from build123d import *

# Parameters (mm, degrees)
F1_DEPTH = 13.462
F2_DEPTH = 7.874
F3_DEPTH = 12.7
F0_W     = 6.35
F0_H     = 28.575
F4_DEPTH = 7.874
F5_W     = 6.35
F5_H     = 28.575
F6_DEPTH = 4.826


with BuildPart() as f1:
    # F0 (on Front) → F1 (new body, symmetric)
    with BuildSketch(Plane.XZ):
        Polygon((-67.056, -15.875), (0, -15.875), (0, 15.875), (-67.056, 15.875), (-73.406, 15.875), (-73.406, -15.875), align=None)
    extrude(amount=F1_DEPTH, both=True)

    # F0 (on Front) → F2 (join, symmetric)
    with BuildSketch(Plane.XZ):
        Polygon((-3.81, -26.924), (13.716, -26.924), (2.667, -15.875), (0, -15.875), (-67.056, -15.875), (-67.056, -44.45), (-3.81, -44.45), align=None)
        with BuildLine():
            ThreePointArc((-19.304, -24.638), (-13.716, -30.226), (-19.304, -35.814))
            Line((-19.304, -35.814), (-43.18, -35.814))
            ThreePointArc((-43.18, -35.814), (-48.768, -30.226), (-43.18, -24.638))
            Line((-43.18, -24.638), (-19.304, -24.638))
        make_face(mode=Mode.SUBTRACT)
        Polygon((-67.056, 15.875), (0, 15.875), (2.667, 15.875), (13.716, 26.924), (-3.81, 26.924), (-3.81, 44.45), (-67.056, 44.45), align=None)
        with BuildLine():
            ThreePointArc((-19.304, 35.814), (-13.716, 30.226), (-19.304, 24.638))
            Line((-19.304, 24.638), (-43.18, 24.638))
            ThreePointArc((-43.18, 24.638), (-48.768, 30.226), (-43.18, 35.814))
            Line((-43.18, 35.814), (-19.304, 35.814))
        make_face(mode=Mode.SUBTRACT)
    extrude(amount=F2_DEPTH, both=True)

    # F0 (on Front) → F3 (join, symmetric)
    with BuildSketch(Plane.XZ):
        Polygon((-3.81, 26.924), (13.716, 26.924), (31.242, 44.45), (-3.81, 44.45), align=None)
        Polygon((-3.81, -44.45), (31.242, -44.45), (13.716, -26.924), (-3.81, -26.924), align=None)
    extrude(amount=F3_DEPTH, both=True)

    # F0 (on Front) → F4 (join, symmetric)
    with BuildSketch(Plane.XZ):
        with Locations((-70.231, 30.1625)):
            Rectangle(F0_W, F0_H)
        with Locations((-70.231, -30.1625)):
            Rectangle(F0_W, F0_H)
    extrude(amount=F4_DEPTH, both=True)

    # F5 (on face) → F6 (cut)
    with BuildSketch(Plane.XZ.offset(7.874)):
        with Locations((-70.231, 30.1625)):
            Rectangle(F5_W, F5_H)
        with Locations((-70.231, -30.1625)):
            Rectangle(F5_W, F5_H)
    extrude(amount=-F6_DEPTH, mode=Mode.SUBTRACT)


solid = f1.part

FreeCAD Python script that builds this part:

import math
import FreeCAD as App
import Part
import Sketcher

V = App.Vector
Q = App.Units.Quantity

doc = App.newDocument("Part")
body = doc.addObject("PartDesign::Body", "Body")

# Sketch on XZ plane
sketch1 = body.newObject("Sketcher::SketchObject", "Sketch")
sketch1.AttachmentSupport = (doc.getObject("XZ_Plane"), [""])
sketch1.MapMode = "FlatFace"
sketch1.addGeometry(Part.LineSegment(V(0, -16, 0), V(0, 16, 0)), False)
sketch1.addGeometry(Part.LineSegment(V(0, 16, 0), V(-73, 16, 0)), False)
sketch1.addGeometry(Part.LineSegment(V(-73, 16, 0), V(-73, -16, 0)), False)
sketch1.addGeometry(Part.LineSegment(V(-73, -16, 0), V(0, -16, 0)), False)
sketch1.addConstraint(Sketcher.Constraint("Coincident", 0, 2, 1, 1))
sketch1.addConstraint(Sketcher.Constraint("Coincident", 1, 2, 2, 1))
sketch1.addConstraint(Sketcher.Constraint("Coincident", 2, 2, 3, 1))
sketch1.addConstraint(Sketcher.Constraint("Coincident", 3, 2, 0, 1))
sketch1.addConstraint(Sketcher.Constraint("Vertical", 0))
sketch1.addConstraint(Sketcher.Constraint("Horizontal", 1))
sketch1.addConstraint(Sketcher.Constraint("Vertical", 2))
sketch1.addConstraint(Sketcher.Constraint("Horizontal", 3))
sketch1.addConstraint(Sketcher.Constraint("Symmetric", 0, 2, 3, 2, -1, 1))
sketch1.addConstraint(Sketcher.Constraint("DistanceX", 1, 2, 1, 1, Q("2.89 in")))
sketch1.addConstraint(Sketcher.Constraint("DistanceY", 0, 1, 0, 2, Q("1.25 in")))
pad1 = body.newObject("PartDesign::Pad", "Pad")
pad1.Profile = sketch1
pad1.Length = Q("1.06 in")
pad1.Midplane = True

# Sketch on XZ plane
sketch2 = body.newObject("Sketcher::SketchObject", "Sketch001")
sketch2.AttachmentSupport = (doc.getObject("XZ_Plane"), [""])
sketch2.MapMode = "FlatFace"
sketch2.addGeometry(Part.LineSegment(V(-4, -27, 0), V(14, -27, 0)), False)
sketch2.addGeometry(Part.LineSegment(V(14, -27, 0), V(3, -16, 0)), False)
sketch2.addGeometry(Part.LineSegment(V(3, -16, 0), V(-67, -16, 0)), False)
sketch2.addGeometry(Part.LineSegment(V(-67, -16, 0), V(-67, -44, 0)), False)
sketch2.addGeometry(Part.LineSegment(V(-67, -44, 0), V(-4, -44, 0)), False)
sketch2.addGeometry(Part.LineSegment(V(-4, -44, 0), V(-4, -27, 0)), False)
sketch2.addGeometry(Part.LineSegment(V(-43, -25, 0), V(-19, -25, 0)), False)
sketch2.addGeometry(Part.ArcOfCircle(Part.Circle(V(-19, -30, 0), V(0, 0, 1), 6), math.radians(-90), math.radians(90)), False)
sketch2.addGeometry(Part.LineSegment(V(-19, -36, 0), V(-43, -36, 0)), False)
sketch2.addGeometry(Part.ArcOfCircle(Part.Circle(V(-43, -30, 0), V(0, 0, 1), 6), math.radians(90), math.radians(270)), False)
sketch2.addGeometry(Part.LineSegment(V(-67, 16, 0), V(3, 16, 0)), False)
sketch2.addGeometry(Part.LineSegment(V(3, 16, 0), V(14, 27, 0)), False)
sketch2.addGeometry(Part.LineSegment(V(14, 27, 0), V(-4, 27, 0)), False)
sketch2.addGeometry(Part.LineSegment(V(-4, 27, 0), V(-4, 44, 0)), False)
sketch2.addGeometry(Part.LineSegment(V(-4, 44, 0), V(-67, 44, 0)), False)
sketch2.addGeometry(Part.LineSegment(V(-67, 44, 0), V(-67, 16, 0)), False)
sketch2.addGeometry(Part.LineSegment(V(-43, 36, 0), V(-19, 36, 0)), False)
sketch2.addGeometry(Part.ArcOfCircle(Part.Circle(V(-19, 30, 0), V(0, 0, 1), 6), math.radians(-90), math.radians(90)), False)
sketch2.addGeometry(Part.LineSegment(V(-19, 25, 0), V(-43, 25, 0)), False)
sketch2.addGeometry(Part.ArcOfCircle(Part.Circle(V(-43, 30, 0), V(0, 0, 1), 6), math.radians(90), math.radians(270)), False)
sketch2.addConstraint(Sketcher.Constraint("Coincident", 0, 2, 1, 1))
sketch2.addConstraint(Sketcher.Constraint("Coincident", 1, 2, 2, 1))
sketch2.addConstraint(Sketcher.Constraint("Coincident", 2, 2, 3, 1))
sketch2.addConstraint(Sketcher.Constraint("Coincident", 3, 2, 4, 1))
sketch2.addConstraint(Sketcher.Constraint("Coincident", 4, 2, 5, 1))
sketch2.addConstraint(Sketcher.Constraint("Coincident", 5, 2, 0, 1))
sketch2.addConstraint(Sketcher.Constraint("Tangent", 6, 2, 7, 2))
sketch2.addConstraint(Sketcher.Constraint("Tangent", 7, 1, 8, 1))
sketch2.addConstraint(Sketcher.Constraint("Tangent", 8, 2, 9, 2))
sketch2.addConstraint(Sketcher.Constraint("Tangent", 9, 1, 6, 1))
sketch2.addConstraint(Sketcher.Constraint("Coincident", 10, 2, 11, 1))
sketch2.addConstraint(Sketcher.Constraint("Coincident", 11, 2, 12, 1))
sketch2.addConstraint(Sketcher.Constraint("Coincident", 12, 2, 13, 1))
sketch2.addConstraint(Sketcher.Constraint("Coincident", 13, 2, 14, 1))
sketch2.addConstraint(Sketcher.Constraint("Coincident", 14, 2, 15, 1))
sketch2.addConstraint(Sketcher.Constraint("Coincident", 15, 2, 10, 1))
sketch2.addConstraint(Sketcher.Constraint("Tangent", 16, 2, 17, 2))
sketch2.addConstraint(Sketcher.Constraint("Tangent", 17, 1, 18, 1))
sketch2.addConstraint(Sketcher.Constraint("Tangent", 18, 2, 19, 2))
sketch2.addConstraint(Sketcher.Constraint("Tangent", 19, 1, 16, 1))
sketch2.addConstraint(Sketcher.Constraint("Horizontal", 0))
sketch2.addConstraint(Sketcher.Constraint("Horizontal", 2))
sketch2.addConstraint(Sketcher.Constraint("Vertical", 3))
sketch2.addConstraint(Sketcher.Constraint("Horizontal", 4))
sketch2.addConstraint(Sketcher.Constraint("Vertical", 5))
sketch2.addConstraint(Sketcher.Constraint("Horizontal", 6))
sketch2.addConstraint(Sketcher.Constraint("Horizontal", 8))
sketch2.addConstraint(Sketcher.Constraint("Horizontal", 10))
sketch2.addConstraint(Sketcher.Constraint("Horizontal", 12))
sketch2.addConstraint(Sketcher.Constraint("Vertical", 13))
sketch2.addConstraint(Sketcher.Constraint("Horizontal", 14))
sketch2.addConstraint(Sketcher.Constraint("Vertical", 15))
sketch2.addConstraint(Sketcher.Constraint("Horizontal", 16))
sketch2.addConstraint(Sketcher.Constraint("Horizontal", 18))
sketch2.addConstraint(Sketcher.Constraint("Equal", 9, 17))
sketch2.addConstraint(Sketcher.Constraint("Symmetric", 7, 3, 17, 3, -1))
sketch2.addConstraint(Sketcher.Constraint("Symmetric", 1, 2, 10, 2, -1))
sketch2.addConstraint(Sketcher.Constraint("Symmetric", 0, 2, 11, 2, -1))
sketch2.addConstraint(Sketcher.Constraint("Symmetric", 4, 2, 13, 2, -1))
sketch2.addConstraint(Sketcher.Constraint("Perpendicular", 1, 11))
sketch2.addConstraint(Sketcher.Constraint("Vertical", 9, 3, 19, 3))
sketch2.addConstraint(Sketcher.Constraint("Vertical", 3, 2, 14, 2))
sketch2.addConstraint(Sketcher.Constraint("Equal", 12, 5))
sketch2.addConstraint(Sketcher.Constraint("Radius", 7, Q("0.22 in")))
sketch2.addConstraint(Sketcher.Constraint("DistanceX", 0, 1, 0, 2, Q("0.69 in")))
sketch2.addConstraint(Sketcher.Constraint("DistanceX", 4, 1, 4, 2, Q("2.49 in")))
sketch2.addConstraint(Sketcher.Constraint("DistanceX", 6, 1, 6, 2, Q("0.94 in")))
sketch2.addConstraint(Sketcher.Constraint("DistanceX", 9, 3, -1, 1, Q("1.7 in")))
sketch2.addConstraint(Sketcher.Constraint("DistanceX", 7, 3, 0, 2, Q("1.3 in")))
sketch2.addConstraint(Sketcher.Constraint("DistanceX", 2, 2, 2, 1, Q("2.745 in")))
sketch2.addConstraint(Sketcher.Constraint("DistanceY", 7, 3, -1, 1, Q("1.19 in")))
sketch2.addConstraint(Sketcher.Constraint("DistanceY", 0, 2, -1, 1, Q("1.06 in")))
pad2 = body.newObject("PartDesign::Pad", "Pad001")
pad2.Profile = sketch2
pad2.Length = Q("0.62 in")
pad2.Midplane = True

# Sketch on XZ plane
sketch3 = body.newObject("Sketcher::SketchObject", "Sketch002")
sketch3.AttachmentSupport = (doc.getObject("XZ_Plane"), [""])
sketch3.MapMode = "FlatFace"
sketch3.addGeometry(Part.LineSegment(V(-4, 27, 0), V(14, 27, 0)), False)
sketch3.addGeometry(Part.LineSegment(V(14, 27, 0), V(31, 44, 0)), False)
sketch3.addGeometry(Part.LineSegment(V(31, 44, 0), V(-4, 44, 0)), False)
sketch3.addGeometry(Part.LineSegment(V(-4, 44, 0), V(-4, 27, 0)), False)
sketch3.addGeometry(Part.LineSegment(V(-4, -44, 0), V(31, -44, 0)), False)
sketch3.addGeometry(Part.LineSegment(V(31, -44, 0), V(14, -27, 0)), False)
sketch3.addGeometry(Part.LineSegment(V(14, -27, 0), V(-4, -27, 0)), False)
sketch3.addGeometry(Part.LineSegment(V(-4, -27, 0), V(-4, -44, 0)), False)
sketch3.addConstraint(Sketcher.Constraint("Coincident", 0, 2, 1, 1))
sketch3.addConstraint(Sketcher.Constraint("Coincident", 1, 2, 2, 1))
sketch3.addConstraint(Sketcher.Constraint("Coincident", 2, 2, 3, 1))
sketch3.addConstraint(Sketcher.Constraint("Coincident", 3, 2, 0, 1))
sketch3.addConstraint(Sketcher.Constraint("Coincident", 4, 2, 5, 1))
sketch3.addConstraint(Sketcher.Constraint("Coincident", 5, 2, 6, 1))
sketch3.addConstraint(Sketcher.Constraint("Coincident", 6, 2, 7, 1))
sketch3.addConstraint(Sketcher.Constraint("Coincident", 7, 2, 4, 1))
sketch3.addConstraint(Sketcher.Constraint("Horizontal", 0))
sketch3.addConstraint(Sketcher.Constraint("Horizontal", 2))
sketch3.addConstraint(Sketcher.Constraint("Vertical", 3))
sketch3.addConstraint(Sketcher.Constraint("Horizontal", 4))
sketch3.addConstraint(Sketcher.Constraint("Horizontal", 6))
sketch3.addConstraint(Sketcher.Constraint("Vertical", 7))
sketch3.addConstraint(Sketcher.Constraint("Symmetric", 1, 2, 4, 2, -1))
sketch3.addConstraint(Sketcher.Constraint("Symmetric", 0, 2, 5, 2, -1))
sketch3.addConstraint(Sketcher.Constraint("Perpendicular", 1, 5))
sketch3.addConstraint(Sketcher.Constraint("Vertical", 3, 2, 6, 2))
sketch3.addConstraint(Sketcher.Constraint("Equal", 6, 3))
sketch3.addConstraint(Sketcher.Constraint("DistanceX", 0, 1, 0, 2, Q("0.69 in")))
sketch3.addConstraint(Sketcher.Constraint("DistanceY", 4, 2, 1, 2, Q("3.5 in")))
sketch3.addConstraint(Sketcher.Constraint("DistanceX", -1, 1, 0, 2, Q("0.54 in")))
pad3 = body.newObject("PartDesign::Pad", "Pad002")
pad3.Profile = sketch3
pad3.Length = Q("1 in")
pad3.Midplane = True

# Sketch on XZ plane
sketch4 = body.newObject("Sketcher::SketchObject", "Sketch003")
sketch4.AttachmentSupport = (doc.getObject("XZ_Plane"), [""])
sketch4.MapMode = "FlatFace"
sketch4.addGeometry(Part.LineSegment(V(-73, 44, 0), V(-73, 16, 0)), False)
sketch4.addGeometry(Part.LineSegment(V(-73, 16, 0), V(-67, 16, 0)), False)
sketch4.addGeometry(Part.LineSegment(V(-67, 16, 0), V(-67, 44, 0)), False)
sketch4.addGeometry(Part.LineSegment(V(-67, 44, 0), V(-73, 44, 0)), False)
sketch4.addGeometry(Part.LineSegment(V(-73, -16, 0), V(-73, -44, 0)), False)
sketch4.addGeometry(Part.LineSegment(V(-73, -44, 0), V(-67, -44, 0)), False)
sketch4.addGeometry(Part.LineSegment(V(-67, -44, 0), V(-67, -16, 0)), False)
sketch4.addGeometry(Part.LineSegment(V(-67, -16, 0), V(-73, -16, 0)), False)
sketch4.addConstraint(Sketcher.Constraint("Coincident", 0, 2, 1, 1))
sketch4.addConstraint(Sketcher.Constraint("Coincident", 1, 2, 2, 1))
sketch4.addConstraint(Sketcher.Constraint("Coincident", 2, 2, 3, 1))
sketch4.addConstraint(Sketcher.Constraint("Coincident", 3, 2, 0, 1))
sketch4.addConstraint(Sketcher.Constraint("Coincident", 4, 2, 5, 1))
sketch4.addConstraint(Sketcher.Constraint("Coincident", 5, 2, 6, 1))
sketch4.addConstraint(Sketcher.Constraint("Coincident", 6, 2, 7, 1))
sketch4.addConstraint(Sketcher.Constraint("Coincident", 7, 2, 4, 1))
sketch4.addConstraint(Sketcher.Constraint("Vertical", 0))
sketch4.addConstraint(Sketcher.Constraint("Horizontal", 1))
sketch4.addConstraint(Sketcher.Constraint("Vertical", 2))
sketch4.addConstraint(Sketcher.Constraint("Horizontal", 3))
sketch4.addConstraint(Sketcher.Constraint("Vertical", 4))
sketch4.addConstraint(Sketcher.Constraint("Horizontal", 5))
sketch4.addConstraint(Sketcher.Constraint("Vertical", 6))
sketch4.addConstraint(Sketcher.Constraint("Horizontal", 7))
sketch4.addConstraint(Sketcher.Constraint("Symmetric", 3, 2, 4, 2, -1))
sketch4.addConstraint(Sketcher.Constraint("Symmetric", 1, 2, 6, 2, -1))
sketch4.addConstraint(Sketcher.Constraint("DistanceX", 1, 1, 1, 2, Q("0.25 in")))
sketch4.addConstraint(Sketcher.Constraint("DistanceY", 4, 2, 3, 2, Q("3.5 in")))
sketch4.addConstraint(Sketcher.Constraint("DistanceY", 0, 2, 0, 1, Q("1.125 in")))
sketch4.addConstraint(Sketcher.Constraint("DistanceX", 0, 2, -1, 1, Q("2.89 in")))
pad4 = body.newObject("PartDesign::Pad", "Pad003")
pad4.Profile = sketch4
pad4.Length = Q("0.62 in")
pad4.Midplane = True

# Sketch on XZ plane
sketch5 = body.newObject("Sketcher::SketchObject", "Sketch004")
sketch5.AttachmentSupport = (doc.getObject("XZ_Plane"), [""])
sketch5.MapMode = "FlatFace"
sketch5.AttachmentOffset = App.Placement(V(0, 0, 0.31 * 25.4), App.Rotation())
sketch5.addGeometry(Part.LineSegment(V(-73, 44, 0), V(-73, 16, 0)), False)
sketch5.addGeometry(Part.LineSegment(V(-73, 16, 0), V(-67, 16, 0)), False)
sketch5.addGeometry(Part.LineSegment(V(-67, 16, 0), V(-67, 44, 0)), False)
sketch5.addGeometry(Part.LineSegment(V(-67, 44, 0), V(-73, 44, 0)), False)
sketch5.addGeometry(Part.LineSegment(V(-73, -16, 0), V(-73, -44, 0)), False)
sketch5.addGeometry(Part.LineSegment(V(-73, -44, 0), V(-67, -44, 0)), False)
sketch5.addGeometry(Part.LineSegment(V(-67, -44, 0), V(-67, -16, 0)), False)
sketch5.addGeometry(Part.LineSegment(V(-67, -16, 0), V(-73, -16, 0)), False)
sketch5.addConstraint(Sketcher.Constraint("Coincident", 0, 2, 1, 1))
sketch5.addConstraint(Sketcher.Constraint("Coincident", 1, 2, 2, 1))
sketch5.addConstraint(Sketcher.Constraint("Coincident", 2, 2, 3, 1))
sketch5.addConstraint(Sketcher.Constraint("Coincident", 3, 2, 0, 1))
sketch5.addConstraint(Sketcher.Constraint("Coincident", 4, 2, 5, 1))
sketch5.addConstraint(Sketcher.Constraint("Coincident", 5, 2, 6, 1))
sketch5.addConstraint(Sketcher.Constraint("Coincident", 6, 2, 7, 1))
sketch5.addConstraint(Sketcher.Constraint("Coincident", 7, 2, 4, 1))
sketch5.addConstraint(Sketcher.Constraint("Vertical", 0))
sketch5.addConstraint(Sketcher.Constraint("Horizontal", 1))
sketch5.addConstraint(Sketcher.Constraint("Vertical", 2))
sketch5.addConstraint(Sketcher.Constraint("Horizontal", 3))
sketch5.addConstraint(Sketcher.Constraint("Vertical", 4))
sketch5.addConstraint(Sketcher.Constraint("Horizontal", 5))
sketch5.addConstraint(Sketcher.Constraint("Vertical", 6))
sketch5.addConstraint(Sketcher.Constraint("Horizontal", 7))
sketch5.addConstraint(Sketcher.Constraint("Symmetric", 3, 2, 4, 2, -1))
sketch5.addConstraint(Sketcher.Constraint("Symmetric", 1, 2, 6, 2, -1))
sketch5.addConstraint(Sketcher.Constraint("DistanceX", 1, 1, 1, 2, Q("0.25 in")))
sketch5.addConstraint(Sketcher.Constraint("DistanceY", 4, 2, 3, 2, Q("3.5 in")))
sketch5.addConstraint(Sketcher.Constraint("DistanceY", 0, 2, 0, 1, Q("1.125 in")))
sketch5.addConstraint(Sketcher.Constraint("DistanceX", 0, 2, -1, 1, Q("2.89 in")))
pocket1 = body.newObject("PartDesign::Pocket", "Pocket")
pocket1.Profile = sketch5
pocket1.Length = Q("0.19 in")

doc.recompute()
